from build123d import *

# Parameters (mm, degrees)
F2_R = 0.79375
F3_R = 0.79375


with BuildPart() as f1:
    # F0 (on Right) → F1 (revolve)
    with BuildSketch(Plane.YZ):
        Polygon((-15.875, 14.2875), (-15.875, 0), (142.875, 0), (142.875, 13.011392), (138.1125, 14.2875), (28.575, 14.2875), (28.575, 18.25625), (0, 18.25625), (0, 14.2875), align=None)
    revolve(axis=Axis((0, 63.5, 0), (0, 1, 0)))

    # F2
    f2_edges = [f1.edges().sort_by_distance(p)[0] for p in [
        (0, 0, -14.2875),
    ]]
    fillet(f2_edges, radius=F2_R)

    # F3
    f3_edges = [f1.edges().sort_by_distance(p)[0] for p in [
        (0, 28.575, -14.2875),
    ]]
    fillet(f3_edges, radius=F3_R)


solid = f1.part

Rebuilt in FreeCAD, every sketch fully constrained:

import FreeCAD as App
import Part
import Sketcher
from FreeCAD import Vector
Q = App.Units.Quantity


def edges_at(feature, points):
    """Names of the edges that pass closest to the given points."""
    edges = feature.Shape.Edges
    near = lambda p: min(range(len(edges)), key=lambda i: edges[i].distToShape(Part.Vertex(*p))[0])
    return sorted({f"Edge{near(p) + 1}" for p in points})

doc = App.newDocument("Part")
body = doc.addObject("PartDesign::Body", "Body")

sketch1 = doc.addObject("Sketcher::SketchObject", "Sketch")
body.addObject(sketch1)
sketch1.AttachmentSupport = (doc.YZ_Plane, [""])
sketch1.MapMode = "FlatFace"
sketch1.addGeometry(Part.LineSegment(Vector(-15.9, 14.3, 0), Vector(-15.9, 0, 0)), False)
sketch1.addGeometry(Part.LineSegment(Vector(-15.9, 0, 0), Vector(142.9, 0, 0)), False)
sketch1.addGeometry(Part.LineSegment(Vector(142.9, 0, 0), Vector(142.9, 13, 0)), False)
sketch1.addGeometry(Part.LineSegment(Vector(142.9, 13, 0), Vector(138.1, 14.3, 0)), False)
sketch1.addGeometry(Part.LineSegment(Vector(138.1, 14.3, 0), Vector(28.6, 14.3, 0)), False)
sketch1.addGeometry(Part.LineSegment(Vector(28.6, 14.3, 0), Vector(28.6, 18.3, 0)), False)
sketch1.addGeometry(Part.LineSegment(Vector(28.6, 18.3, 0), Vector(0, 18.3, 0)), False)
sketch1.addGeometry(Part.LineSegment(Vector(0, 18.3, 0), Vector(0, 14.3, 0)), False)
sketch1.addGeometry(Part.LineSegment(Vector(0, 14.3, 0), Vector(-15.9, 14.3, 0)), False)
sketch1.addConstraint(Sketcher.Constraint("Coincident", 0, 2, 1, 1))
sketch1.addConstraint(Sketcher.Constraint("Coincident", 1, 2, 2, 1))
sketch1.addConstraint(Sketcher.Constraint("Coincident", 2, 2, 3, 1))
sketch1.addConstraint(Sketcher.Constraint("Coincident", 3, 2, 4, 1))
sketch1.addConstraint(Sketcher.Constraint("Coincident", 4, 2, 5, 1))
sketch1.addConstraint(Sketcher.Constraint("Coincident", 5, 2, 6, 1))
sketch1.addConstraint(Sketcher.Constraint("Coincident", 6, 2, 7, 1))
sketch1.addConstraint(Sketcher.Constraint("Coincident", 7, 2, 8, 1))
sketch1.addConstraint(Sketcher.Constraint("Coincident", 8, 2, 0, 1))
sketch1.addConstraint(Sketcher.Constraint("Vertical", 0))
sketch1.addConstraint(Sketcher.Constraint("Horizontal", 1))
sketch1.addConstraint(Sketcher.Constraint("Vertical", 2))
sketch1.addConstraint(Sketcher.Constraint("Horizontal", 4))
sketch1.addConstraint(Sketcher.Constraint("Vertical", 5))
sketch1.addConstraint(Sketcher.Constraint("Horizontal", 6))
sketch1.addConstraint(Sketcher.Constraint("Vertical", 7))
sketch1.addConstraint(Sketcher.Constraint("Horizontal", 8))
sketch1.addConstraint(Sketcher.Constraint("PointOnObject", 0, 2, -1))
sketch1.addConstraint(Sketcher.Constraint("PointOnObject", 6, 2, -2))
sketch1.addConstraint(Sketcher.Constraint("Horizontal", 4, 2, 7, 2))
sketch1.addConstraint(Sketcher.Constraint("Angle", 3, Q("165 deg")))
sketch1.addConstraint(Sketcher.Constraint("DistanceX", 1, 1, 1, 2, Q("6.25 in")))
sketch1.addConstraint(Sketcher.Constraint("DistanceX", 4, 2, 2, 2, Q("4.5 in")))
sketch1.addConstraint(Sketcher.Constraint("DistanceX", 4, 2, 4, 1, Q("4.3125 in")))
sketch1.addConstraint(Sketcher.Constraint("DistanceX", 6, 2, 6, 1, Q("1.125 in")))
sketch1.addConstraint(Sketcher.Constraint("DistanceY", 0, 2, 0, 1, Q("0.5625 in")))
sketch1.addConstraint(Sketcher.Constraint("DistanceY", 5, 1, 5, 2, Q("0.15625 in")))
revolution = doc.addObject("PartDesign::Revolution", "Revolution")
body.addObject(revolution)
revolution.Profile = sketch1
revolution.ReferenceAxis = (sketch1, ["H_Axis"])
revolution.Angle = 360
doc.recompute()

fillet = doc.addObject("PartDesign::Fillet", "Fillet")
body.addObject(fillet)
fillet.Base = (revolution, edges_at(revolution, [(0, 0, -14.287)]))
fillet.Radius = Q("0.03125 in")
doc.recompute()

fillet2 = doc.addObject("PartDesign::Fillet", "Fillet001")
body.addObject(fillet2)
fillet2.Base = (fillet, edges_at(fillet, [(0, 28.575, -14.287)]))
fillet2.Radius = Q("0.03125 in")

doc.recompute()
